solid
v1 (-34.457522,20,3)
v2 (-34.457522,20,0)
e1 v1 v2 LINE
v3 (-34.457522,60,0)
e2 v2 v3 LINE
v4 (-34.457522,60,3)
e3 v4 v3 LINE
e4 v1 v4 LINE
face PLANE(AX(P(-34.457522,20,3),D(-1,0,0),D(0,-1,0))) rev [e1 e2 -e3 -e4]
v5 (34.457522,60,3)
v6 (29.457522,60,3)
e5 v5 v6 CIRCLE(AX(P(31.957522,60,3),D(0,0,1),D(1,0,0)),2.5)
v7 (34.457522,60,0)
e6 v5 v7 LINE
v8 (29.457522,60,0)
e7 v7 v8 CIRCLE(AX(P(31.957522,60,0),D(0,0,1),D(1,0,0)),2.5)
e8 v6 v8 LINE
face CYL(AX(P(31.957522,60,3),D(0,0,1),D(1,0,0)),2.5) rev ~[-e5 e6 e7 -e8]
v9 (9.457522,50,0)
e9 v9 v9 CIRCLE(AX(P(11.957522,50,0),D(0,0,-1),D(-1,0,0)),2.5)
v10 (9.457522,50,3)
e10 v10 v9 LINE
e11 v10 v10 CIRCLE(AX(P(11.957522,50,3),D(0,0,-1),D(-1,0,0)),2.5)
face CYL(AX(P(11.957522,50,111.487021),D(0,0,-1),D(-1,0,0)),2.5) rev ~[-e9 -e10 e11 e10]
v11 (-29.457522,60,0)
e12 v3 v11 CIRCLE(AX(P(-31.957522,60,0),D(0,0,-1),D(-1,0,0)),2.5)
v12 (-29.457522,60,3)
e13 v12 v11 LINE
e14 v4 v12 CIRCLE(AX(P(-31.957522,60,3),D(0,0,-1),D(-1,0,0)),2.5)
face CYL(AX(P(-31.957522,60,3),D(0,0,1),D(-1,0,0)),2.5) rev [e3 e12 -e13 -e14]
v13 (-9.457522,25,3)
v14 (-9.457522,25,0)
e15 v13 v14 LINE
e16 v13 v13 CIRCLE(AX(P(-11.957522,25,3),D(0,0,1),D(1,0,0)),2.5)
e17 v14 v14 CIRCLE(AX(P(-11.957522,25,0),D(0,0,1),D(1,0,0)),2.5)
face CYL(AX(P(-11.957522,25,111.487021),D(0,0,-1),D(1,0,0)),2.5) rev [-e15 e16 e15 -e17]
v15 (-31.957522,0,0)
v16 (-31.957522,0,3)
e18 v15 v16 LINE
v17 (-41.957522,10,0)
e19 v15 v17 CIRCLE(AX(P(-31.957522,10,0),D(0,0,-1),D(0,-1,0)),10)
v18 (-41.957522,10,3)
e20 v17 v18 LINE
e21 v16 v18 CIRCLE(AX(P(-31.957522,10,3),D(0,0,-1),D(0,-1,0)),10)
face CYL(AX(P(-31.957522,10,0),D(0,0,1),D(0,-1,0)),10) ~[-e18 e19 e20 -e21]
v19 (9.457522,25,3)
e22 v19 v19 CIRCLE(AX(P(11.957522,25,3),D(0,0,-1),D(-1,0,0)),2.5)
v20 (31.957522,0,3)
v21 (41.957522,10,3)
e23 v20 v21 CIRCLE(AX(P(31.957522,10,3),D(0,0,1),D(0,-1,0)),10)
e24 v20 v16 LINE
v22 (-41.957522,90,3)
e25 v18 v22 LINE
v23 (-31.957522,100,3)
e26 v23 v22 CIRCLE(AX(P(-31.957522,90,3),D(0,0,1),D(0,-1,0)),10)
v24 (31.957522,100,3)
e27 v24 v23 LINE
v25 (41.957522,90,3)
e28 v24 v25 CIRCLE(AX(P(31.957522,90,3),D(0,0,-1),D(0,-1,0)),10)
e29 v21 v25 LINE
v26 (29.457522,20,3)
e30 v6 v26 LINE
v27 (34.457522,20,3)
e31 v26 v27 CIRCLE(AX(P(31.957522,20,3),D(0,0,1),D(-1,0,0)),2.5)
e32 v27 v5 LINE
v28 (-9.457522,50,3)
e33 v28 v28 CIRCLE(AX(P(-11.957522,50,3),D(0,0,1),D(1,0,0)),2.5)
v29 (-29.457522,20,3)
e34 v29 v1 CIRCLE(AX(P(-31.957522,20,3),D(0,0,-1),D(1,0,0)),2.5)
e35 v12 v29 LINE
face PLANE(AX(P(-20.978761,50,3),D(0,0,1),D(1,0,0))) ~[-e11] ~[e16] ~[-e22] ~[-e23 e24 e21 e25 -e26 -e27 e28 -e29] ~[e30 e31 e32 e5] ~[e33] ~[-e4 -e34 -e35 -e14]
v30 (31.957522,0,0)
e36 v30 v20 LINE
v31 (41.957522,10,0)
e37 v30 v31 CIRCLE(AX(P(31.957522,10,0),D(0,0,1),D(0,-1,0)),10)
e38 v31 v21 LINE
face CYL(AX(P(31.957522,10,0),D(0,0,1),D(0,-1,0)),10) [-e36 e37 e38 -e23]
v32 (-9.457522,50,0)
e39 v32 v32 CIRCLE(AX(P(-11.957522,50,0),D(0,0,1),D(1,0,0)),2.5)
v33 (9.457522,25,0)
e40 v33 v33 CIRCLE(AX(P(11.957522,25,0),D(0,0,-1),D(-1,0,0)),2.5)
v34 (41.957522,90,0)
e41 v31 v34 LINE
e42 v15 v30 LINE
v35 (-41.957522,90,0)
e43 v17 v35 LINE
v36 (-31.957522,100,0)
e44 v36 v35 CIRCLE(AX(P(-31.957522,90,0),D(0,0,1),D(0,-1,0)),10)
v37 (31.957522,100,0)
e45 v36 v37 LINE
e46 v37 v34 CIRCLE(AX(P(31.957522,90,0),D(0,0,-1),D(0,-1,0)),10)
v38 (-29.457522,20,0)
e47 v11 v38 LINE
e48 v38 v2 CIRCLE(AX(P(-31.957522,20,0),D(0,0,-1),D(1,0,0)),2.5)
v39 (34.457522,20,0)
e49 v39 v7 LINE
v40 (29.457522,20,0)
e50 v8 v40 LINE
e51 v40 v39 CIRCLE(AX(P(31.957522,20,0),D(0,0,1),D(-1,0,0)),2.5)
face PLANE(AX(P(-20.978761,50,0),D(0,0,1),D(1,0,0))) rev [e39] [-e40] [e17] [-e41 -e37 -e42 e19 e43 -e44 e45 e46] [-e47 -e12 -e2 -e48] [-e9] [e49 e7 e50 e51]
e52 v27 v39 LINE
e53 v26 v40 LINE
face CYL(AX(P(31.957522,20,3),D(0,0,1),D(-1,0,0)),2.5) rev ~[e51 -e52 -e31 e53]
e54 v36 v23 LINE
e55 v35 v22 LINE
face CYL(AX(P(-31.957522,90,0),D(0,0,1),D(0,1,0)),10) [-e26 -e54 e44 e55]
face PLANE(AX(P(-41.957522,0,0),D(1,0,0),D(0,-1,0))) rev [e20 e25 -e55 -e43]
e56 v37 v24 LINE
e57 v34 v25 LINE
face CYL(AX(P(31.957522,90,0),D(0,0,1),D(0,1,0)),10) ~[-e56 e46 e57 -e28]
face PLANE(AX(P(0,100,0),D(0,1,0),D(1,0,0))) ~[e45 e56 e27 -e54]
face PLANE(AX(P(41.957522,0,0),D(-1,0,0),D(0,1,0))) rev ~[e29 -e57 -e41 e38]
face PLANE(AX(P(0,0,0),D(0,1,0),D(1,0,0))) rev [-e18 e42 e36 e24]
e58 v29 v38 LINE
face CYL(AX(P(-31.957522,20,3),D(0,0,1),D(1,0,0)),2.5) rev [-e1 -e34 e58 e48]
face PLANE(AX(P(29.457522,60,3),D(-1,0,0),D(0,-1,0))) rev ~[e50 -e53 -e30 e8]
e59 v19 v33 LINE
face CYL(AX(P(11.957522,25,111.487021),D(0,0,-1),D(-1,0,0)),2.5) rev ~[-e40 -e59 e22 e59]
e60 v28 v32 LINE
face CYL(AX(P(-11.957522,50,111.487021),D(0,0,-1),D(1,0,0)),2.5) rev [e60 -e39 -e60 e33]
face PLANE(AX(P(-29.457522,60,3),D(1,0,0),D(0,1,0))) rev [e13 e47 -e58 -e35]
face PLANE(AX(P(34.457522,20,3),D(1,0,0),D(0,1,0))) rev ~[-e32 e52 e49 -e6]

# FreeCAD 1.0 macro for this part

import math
import FreeCAD as App
import Part
import Sketcher
Q = App.Units.Quantity


def edges_at(feature, points):
    """Names of the edges that pass closest to the given points."""
    edges = feature.Shape.Edges
    near = lambda p: min(range(len(edges)), key=lambda i: edges[i].distToShape(Part.Vertex(*p))[0])
    return sorted({f"Edge{near(p) + 1}" for p in points})

doc = App.newDocument("Part")
body = doc.addObject("PartDesign::Body", "Body")

sketch1 = body.newObject("Sketcher::SketchObject", "Sketch")
sketch1.AttachmentSupport = (doc.getObject("XY_Plane"), [""])
sketch1.MapMode = "FlatFace"
sketch1.addGeometry([
    Part.LineSegment(App.Vector(0, 100, 0), App.Vector(0, 0, 0)),
    Part.LineSegment(App.Vector(0, 0, 0), App.Vector(42, 0, 0)),
    Part.LineSegment(App.Vector(42, 0, 0), App.Vector(42, 100, 0)),
    Part.LineSegment(App.Vector(42, 100, 0), App.Vector(0, 100, 0)),
], False)
sketch1.addConstraint([
    Sketcher.Constraint("Coincident", 0, 2, 1, 1),
    Sketcher.Constraint("Coincident", 1, 2, 2, 1),
    Sketcher.Constraint("Coincident", 2, 2, 3, 1),
    Sketcher.Constraint("Coincident", 3, 2, 0, 1),
    Sketcher.Constraint("Vertical", 0),
    Sketcher.Constraint("Horizontal", 1),
    Sketcher.Constraint("Vertical", 2),
    Sketcher.Constraint("Horizontal", 3),
    Sketcher.Constraint("Coincident", 0, 2, -1, 1),
    Sketcher.Constraint("DistanceY", 0, 2, 0, 1, Q("100 mm")),
    Sketcher.Constraint("DistanceX", 1, 1, 1, 2, Q("41.957522 mm")),
])
pad1 = body.newObject("PartDesign::Pad", "Pad")
pad1.Profile = sketch1
pad1.Length = 3

sketch2 = body.newObject("Sketcher::SketchObject", "Sketch001")
sketch2.AttachmentSupport = (doc.getObject("XY_Plane"), [""])
sketch2.MapMode = "FlatFace"
sketch2.AttachmentOffset = App.Placement(App.Vector(0, 0, 3), App.Rotation())
sketch2.addGeometry([
    Part.Circle(App.Vector(12, 50, 0), App.Vector(0, 0, 1), 2.5),
    Part.Circle(App.Vector(12, 25, 0), App.Vector(0, 0, 1), 2.5),
], False)
sketch2.addConstraint([
    Sketcher.Constraint("Equal", 0, 1),
    Sketcher.Constraint("Vertical", 0, 3, 1, 3),
    Sketcher.Constraint("Diameter", 0, Q("5 mm")),
    Sketcher.Constraint("DistanceY", -1, 1, 0, 3, Q("50 mm")),
    Sketcher.Constraint("DistanceY", -1, 1, 1, 3, Q("25 mm")),
    Sketcher.Constraint("DistanceX", -1, 1, 0, 3, Q("11.957522 mm")),
])
doc.recompute()
hole = body.newObject("PartDesign::Hole", "Hole")
hole.Profile = sketch2
hole.ThreadType = "None"
hole.Diameter = 5
hole.DepthType = "ThroughAll"

sketch3 = body.newObject("Sketcher::SketchObject", "Sketch002")
sketch3.AttachmentSupport = (doc.getObject("XY_Plane"), [""])
sketch3.MapMode = "FlatFace"
sketch3.AttachmentOffset = App.Placement(App.Vector(0, 0, 3), App.Rotation())
sketch3.addGeometry([
    Part.ArcOfCircle(Part.Circle(App.Vector(32, 20, 0), App.Vector(0, 0, 1), 2.5), math.radians(180), math.radians(360)),
    Part.LineSegment(App.Vector(34.5, 20, 0), App.Vector(34.5, 60, 0)),
    Part.ArcOfCircle(Part.Circle(App.Vector(32, 60, 0), App.Vector(0, 0, 1), 2.5), math.radians(0), math.radians(180)),
    Part.LineSegment(App.Vector(29.5, 60, 0), App.Vector(29.5, 20, 0)),
], False)
sketch3.addConstraint([
    Sketcher.Constraint("Tangent", 0, 2, 1, 1),
    Sketcher.Constraint("Tangent", 1, 2, 2, 1),
    Sketcher.Constraint("Tangent", 2, 2, 3, 1),
    Sketcher.Constraint("Tangent", 3, 2, 0, 1),
    Sketcher.Constraint("Vertical", 1),
    Sketcher.Constraint("Vertical", 3),
    Sketcher.Constraint("Radius", 0, Q("2.5 mm")),
    Sketcher.Constraint("DistanceY", 1, 1, 1, 2, Q("40 mm")),
    Sketcher.Constraint("DistanceY", -1, 1, 0, 3, Q("20 mm")),
    Sketcher.Constraint("DistanceX", -1, 1, 0, 2, Q("34.457522 mm")),
])
pocket1 = body.newObject("PartDesign::Pocket", "Pocket")
pocket1.Profile = sketch3
pocket1.Length = 25
doc.recompute()

fillet = body.newObject("PartDesign::Fillet", "Fillet")
fillet.Base = (pocket1, edges_at(pocket1, [(41.958, 0, 1.5), (41.958, 100, 1.5)]))
fillet.Radius = 10
body2 = doc.addObject("PartDesign::Body", "Body001")
doc.recompute()

body2.BaseFeature = body
doc.recompute()

mirroring = doc.addObject("Part::Mirroring", "Mirroring")
mirroring.Source = body
mirroring.Base = App.Vector(0, 0, 0)
mirroring.Normal = App.Vector(1, 0, 0)
body3 = doc.addObject("PartDesign::Body", "Body002")
body3.BaseFeature = mirroring
boolean = body2.newObject("PartDesign::Boolean", "Boolean")
boolean.Type = "Fuse"
boolean.addObjects([body3])
doc.recompute()
mirroring.Visibility = False

doc.recompute()
